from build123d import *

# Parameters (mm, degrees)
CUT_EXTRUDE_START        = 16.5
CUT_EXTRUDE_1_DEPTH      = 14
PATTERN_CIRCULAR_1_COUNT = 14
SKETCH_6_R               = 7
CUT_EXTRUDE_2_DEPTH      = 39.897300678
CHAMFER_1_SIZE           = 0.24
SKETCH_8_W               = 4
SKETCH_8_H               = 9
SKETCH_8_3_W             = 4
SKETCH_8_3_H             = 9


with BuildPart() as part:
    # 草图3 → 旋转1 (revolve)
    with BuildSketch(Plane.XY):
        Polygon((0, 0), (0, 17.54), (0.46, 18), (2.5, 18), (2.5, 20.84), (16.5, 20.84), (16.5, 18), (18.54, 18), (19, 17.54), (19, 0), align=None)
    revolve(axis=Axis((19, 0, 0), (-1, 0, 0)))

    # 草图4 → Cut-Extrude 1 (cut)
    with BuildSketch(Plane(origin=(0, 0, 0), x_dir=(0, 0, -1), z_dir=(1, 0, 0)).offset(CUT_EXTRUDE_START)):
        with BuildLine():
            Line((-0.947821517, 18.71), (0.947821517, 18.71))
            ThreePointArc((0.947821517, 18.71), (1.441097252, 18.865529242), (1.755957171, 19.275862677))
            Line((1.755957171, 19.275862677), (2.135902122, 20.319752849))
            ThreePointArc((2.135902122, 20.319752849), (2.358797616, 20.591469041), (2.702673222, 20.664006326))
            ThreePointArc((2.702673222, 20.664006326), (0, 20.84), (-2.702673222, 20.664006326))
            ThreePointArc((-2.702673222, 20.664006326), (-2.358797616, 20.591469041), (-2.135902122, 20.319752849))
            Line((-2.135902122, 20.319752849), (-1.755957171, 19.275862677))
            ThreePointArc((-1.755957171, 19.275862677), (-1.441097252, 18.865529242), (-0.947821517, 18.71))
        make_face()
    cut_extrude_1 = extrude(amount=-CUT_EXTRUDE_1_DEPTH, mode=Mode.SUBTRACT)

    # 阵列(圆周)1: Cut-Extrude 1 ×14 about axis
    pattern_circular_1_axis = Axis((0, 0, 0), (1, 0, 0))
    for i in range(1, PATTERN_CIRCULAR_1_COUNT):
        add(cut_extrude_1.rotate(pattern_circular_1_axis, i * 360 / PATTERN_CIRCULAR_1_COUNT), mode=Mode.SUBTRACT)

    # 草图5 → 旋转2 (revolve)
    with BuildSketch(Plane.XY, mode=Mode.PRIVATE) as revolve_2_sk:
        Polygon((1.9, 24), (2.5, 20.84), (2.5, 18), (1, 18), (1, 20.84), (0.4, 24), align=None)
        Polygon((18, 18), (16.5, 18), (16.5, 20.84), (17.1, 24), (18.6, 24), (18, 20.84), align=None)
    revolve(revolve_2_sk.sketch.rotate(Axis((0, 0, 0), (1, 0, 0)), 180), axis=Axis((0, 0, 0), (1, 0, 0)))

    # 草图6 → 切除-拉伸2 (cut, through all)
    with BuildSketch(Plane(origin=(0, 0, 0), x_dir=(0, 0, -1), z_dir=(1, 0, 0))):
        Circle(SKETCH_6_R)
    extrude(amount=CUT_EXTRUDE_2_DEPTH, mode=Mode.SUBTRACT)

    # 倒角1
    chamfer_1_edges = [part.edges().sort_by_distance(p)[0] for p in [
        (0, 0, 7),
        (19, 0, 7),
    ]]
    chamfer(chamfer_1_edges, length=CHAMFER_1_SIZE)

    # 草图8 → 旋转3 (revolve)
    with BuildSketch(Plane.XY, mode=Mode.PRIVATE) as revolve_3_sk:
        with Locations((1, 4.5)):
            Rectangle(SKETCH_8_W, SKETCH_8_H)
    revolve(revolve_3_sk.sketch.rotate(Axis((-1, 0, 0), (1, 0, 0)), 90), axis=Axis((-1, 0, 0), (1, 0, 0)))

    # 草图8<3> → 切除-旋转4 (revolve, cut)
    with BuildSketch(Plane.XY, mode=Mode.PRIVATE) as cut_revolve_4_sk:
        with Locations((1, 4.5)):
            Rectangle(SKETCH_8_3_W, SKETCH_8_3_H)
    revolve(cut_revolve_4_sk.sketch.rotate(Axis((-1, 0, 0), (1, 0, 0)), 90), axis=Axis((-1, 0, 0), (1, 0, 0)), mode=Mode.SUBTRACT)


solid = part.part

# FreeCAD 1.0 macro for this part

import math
import FreeCAD as App
import Part
import Sketcher
Q = App.Units.Quantity


def edges_at(feature, points):
    """Names of the edges that pass closest to the given points."""
    edges = feature.Shape.Edges
    near = lambda p: min(range(len(edges)), key=lambda i: edges[i].distToShape(Part.Vertex(*p))[0])
    return sorted({f"Edge{near(p) + 1}" for p in points})


def add_polygon(sketch, points):
    """Adds a closed chain of lines whose ends are joined by coincident constraints."""
    first, n = sketch.GeometryCount, len(points)
    for a, b in zip(points, points[1:] + points[:1]):
        sketch.addGeometry(Part.LineSegment(App.Vector(*a, 0), App.Vector(*b, 0)), False)
    for i in range(n):
        sketch.addConstraint(Sketcher.Constraint("Coincident", first + i, 2, first + (i + 1) % n, 1))

doc = App.newDocument("Part")
body = doc.addObject("PartDesign::Body", "Body")

sketch1 = body.newObject("Sketcher::SketchObject", "Sketch")
sketch1.AttachmentSupport = (doc.getObject("XY_Plane"), [""])
sketch1.MapMode = "FlatFace"
add_polygon(sketch1, [(0, 17.54), (0, 0), (19, 0), (19, 17.54), (18.54, 18), (16.5, 18), (16.5, 20.84), (2.5, 20.84), (2.5, 18), (0.46, 18)])
sketch1.addConstraint(Sketcher.Constraint("Vertical", 0))
sketch1.addConstraint(Sketcher.Constraint("Horizontal", 1))
sketch1.addConstraint(Sketcher.Constraint("Vertical", 2))
sketch1.addConstraint(Sketcher.Constraint("Horizontal", 4))
sketch1.addConstraint(Sketcher.Constraint("Vertical", 5))
sketch1.addConstraint(Sketcher.Constraint("Horizontal", 6))
sketch1.addConstraint(Sketcher.Constraint("Vertical", 7))
sketch1.addConstraint(Sketcher.Constraint("Horizontal", 8))
sketch1.addConstraint(Sketcher.Constraint("Coincident", 0, 2, -1, 1))
sketch1.addConstraint(Sketcher.Constraint("Perpendicular", 3, 9))
sketch1.addConstraint(Sketcher.Constraint("Horizontal", 4, 2, 7, 2))
sketch1.addConstraint(Sketcher.Constraint("Horizontal", 2, 2, 9, 2))
sketch1.addConstraint(Sketcher.Constraint("Equal", 4, 8))
sketch1.addConstraint(Sketcher.Constraint("Equal", 3, 9))
sketch1.addConstraint(Sketcher.Constraint("DistanceX", 1, 1, 1, 2, Q("19 mm")))
sketch1.addConstraint(Sketcher.Constraint("DistanceX", 6, 2, 6, 1, Q("14 mm")))
sketch1.addConstraint(Sketcher.Constraint("DistanceY", -1, 1, 3, 2, Q("18 mm")))
sketch1.addConstraint(Sketcher.Constraint("DistanceX", 4, 2, 4, 1, Q("2.04 mm")))
sketch1.addConstraint(Sketcher.Constraint("DistanceY", 5, 1, 5, 2, Q("2.84 mm")))
revolution = body.newObject("PartDesign::Revolution", "Revolution")
revolution.Profile = sketch1
revolution.ReferenceAxis = (sketch1, ["H_Axis"])
revolution.Angle = 360

sketch2 = body.newObject("Sketcher::SketchObject", "Sketch001")
sketch2.AttachmentSupport = (doc.getObject("YZ_Plane"), [""])
sketch2.MapMode = "FlatFace"
sketch2.AttachmentOffset = App.Placement(App.Vector(0, 0, 16.5), App.Rotation())
sketch2.addGeometry(Part.LineSegment(App.Vector(18.71, 0.947822, 0), App.Vector(18.71, -0.947822, 0)), False)
sketch2.addGeometry(Part.ArcOfCircle(Part.Circle(App.Vector(19.57, -0.947822, 0), App.Vector(0, 0, 1), 0.86), math.radians(-180), math.radians(-110)), False)
sketch2.addGeometry(Part.LineSegment(App.Vector(19.275863, -1.755957, 0), App.Vector(20.319753, -2.135902, 0)), False)
sketch2.addGeometry(Part.ArcOfCircle(Part.Circle(App.Vector(20.138482, -2.633939, 0), App.Vector(0, 0, 1), 0.53), math.radians(-7.451495), math.radians(70)), False)
sketch2.addGeometry(Part.ArcOfCircle(Part.Circle(App.Vector(0, 0, 0), App.Vector(0, 0, 1), 20.84), math.radians(-7.451495), math.radians(7.451495)), False)
sketch2.addGeometry(Part.ArcOfCircle(Part.Circle(App.Vector(20.138482, 2.633939, 0), App.Vector(0, 0, 1), 0.53), math.radians(-70), math.radians(7.451495)), False)
sketch2.addGeometry(Part.LineSegment(App.Vector(20.319753, 2.135902, 0), App.Vector(19.275863, 1.755957, 0)), False)
sketch2.addGeometry(Part.ArcOfCircle(Part.Circle(App.Vector(19.57, 0.947822, 0), App.Vector(0, 0, 1), 0.86), math.radians(110), math.radians(180)), False)
sketch2.addConstraint(Sketcher.Constraint("Tangent", 0, 2, 1, 1))
sketch2.addConstraint(Sketcher.Constraint("Tangent", 1, 2, 2, 1))
sketch2.addConstraint(Sketcher.Constraint("Tangent", 2, 2, 3, 2))
sketch2.addConstraint(Sketcher.Constraint("Tangent", 3, 1, 4, 1))
sketch2.addConstraint(Sketcher.Constraint("Tangent", 4, 2, 5, 2))
sketch2.addConstraint(Sketcher.Constraint("Tangent", 5, 1, 6, 1))
sketch2.addConstraint(Sketcher.Constraint("Tangent", 6, 2, 7, 1))
sketch2.addConstraint(Sketcher.Constraint("Tangent", 7, 2, 0, 1))
sketch2.addConstraint(Sketcher.Constraint("Vertical", 0))
sketch2.addConstraint(Sketcher.Constraint("Coincident", 4, 3, -1, 1))
sketch2.addConstraint(Sketcher.Constraint("Equal", 3, 5))
sketch2.addConstraint(Sketcher.Constraint("Equal", 1, 7))
sketch2.addConstraint(Sketcher.Constraint("Symmetric", 2, 2, 5, 1, -1))
sketch2.addConstraint(Sketcher.Constraint("Angle", 2, Q("-20 deg")))
sketch2.addConstraint(Sketcher.Constraint("Radius", 1, Q("0.86 mm")))
sketch2.addConstraint(Sketcher.Constraint("Radius", 3, Q("0.53 mm")))
sketch2.addConstraint(Sketcher.Constraint("Radius", 4, Q("20.84 mm")))
sketch2.addConstraint(Sketcher.Constraint("DistanceX", -1, 1, 1, 3, Q("19.57 mm")))
sketch2.addConstraint(Sketcher.Constraint("DistanceY", 0, 2, 0, 1, Q("1.895643 mm")))
pocket1 = body.newObject("PartDesign::Pocket", "Pocket")
pocket1.Profile = sketch2
pocket1.Length = 14
doc.recompute()

polarpattern = body.newObject("PartDesign::PolarPattern", "PolarPattern")
polarpattern.Originals = [pocket1]
polarpattern.Axis = (doc.getObject("X_Axis"), [""])
polarpattern.Angle = 360
polarpattern.Occurrences = 14
body.Tip = polarpattern

sketch3 = body.newObject("Sketcher::SketchObject", "Sketch002")
sketch3.AttachmentSupport = (doc.getObject("XY_Plane"), [""])
sketch3.MapMode = "FlatFace"
add_polygon(sketch3, [(2.5, 20.84), (1.9, 24), (0.4, 24), (1, 20.84), (1, 18), (2.5, 18)])
add_polygon(sketch3, [(16.5, 18), (18, 18), (18, 20.84), (18.6, 24), (17.1, 24), (16.5, 20.84)])
sketch3.addConstraint(Sketcher.Constraint("Horizontal", 1))
sketch3.addConstraint(Sketcher.Constraint("Vertical", 3))
sketch3.addConstraint(Sketcher.Constraint("Horizontal", 4))
sketch3.addConstraint(Sketcher.Constraint("Vertical", 5))
sketch3.addConstraint(Sketcher.Constraint("Horizontal", 6))
sketch3.addConstraint(Sketcher.Constraint("Vertical", 7))
sketch3.addConstraint(Sketcher.Constraint("Horizontal", 9))
sketch3.addConstraint(Sketcher.Constraint("Vertical", 11))
sketch3.addConstraint(Sketcher.Constraint("Parallel", 0, 2))
sketch3.addConstraint(Sketcher.Constraint("Parallel", 8, 10))
sketch3.addConstraint(Sketcher.Constraint("Horizontal", 2, 2, 5, 2))
sketch3.addConstraint(Sketcher.Constraint("Horizontal", 4, 2, 6, 2))
sketch3.addConstraint(Sketcher.Constraint("Horizontal", 5, 2, 7, 2))
sketch3.addConstraint(Sketcher.Constraint("Horizontal", 1, 2, 8, 2))
sketch3.addConstraint(Sketcher.Constraint("Horizontal", 7, 2, 10, 2))
sketch3.addConstraint(Sketcher.Constraint("Equal", 4, 6))
sketch3.addConstraint(Sketcher.Constraint("Equal", 2, 8))
sketch3.addConstraint(Sketcher.Constraint("DistanceX", 1, 2, 1, 1, Q("1.5 mm")))
sketch3.addConstraint(Sketcher.Constraint("DistanceY", -1, 1, 0, 2, Q("24 mm")))
sketch3.addConstraint(Sketcher.Constraint("DistanceX", -1, 1, 2, 2, Q("1 mm")))
sketch3.addConstraint(Sketcher.Constraint("DistanceY", -1, 1, 3, 2, Q("18 mm")))
sketch3.addConstraint(Sketcher.Constraint("DistanceX", -1, 1, 6, 2, Q("18 mm")))
sketch3.addConstraint(Sketcher.Constraint("DistanceY", 3, 2, 3, 1, Q("2.84 mm")))
sketch3.addConstraint(Sketcher.Constraint("DistanceX", -1, 1, 0, 2, Q("1.9 mm")))
revolution2 = body.newObject("PartDesign::Revolution", "Revolution001")
revolution2.Profile = sketch3
revolution2.ReferenceAxis = (sketch3, ["H_Axis"])
revolution2.Angle = 360

sketch4 = body.newObject("Sketcher::SketchObject", "Sketch003")
sketch4.AttachmentSupport = (doc.getObject("YZ_Plane"), [""])
sketch4.MapMode = "FlatFace"
sketch4.addGeometry(Part.Circle(App.Vector(0, 0, 0), App.Vector(0, 0, 1), 7), False)
sketch4.addConstraint(Sketcher.Constraint("Coincident", 0, 3, -1, 1))
sketch4.addConstraint(Sketcher.Constraint("Diameter", 0, Q("14 mm")))
pocket2 = body.newObject("PartDesign::Pocket", "Pocket001")
pocket2.Profile = sketch4
pocket2.Type = "ThroughAll"
pocket2.Reversed = True
doc.recompute()

chamfer = body.newObject("PartDesign::Chamfer", "Chamfer")
chamfer.Base = (pocket2, edges_at(pocket2, [(0, 0, 7), (19, 0, 7)]))
chamfer.Size = 0.24

sketch5 = body.newObject("Sketcher::SketchObject", "Sketch004")
sketch5.AttachmentSupport = (doc.getObject("XY_Plane"), [""])
sketch5.MapMode = "FlatFace"
add_polygon(sketch5, [(-1, 9), (-1, 0), (3, 0), (3, 9)])
sketch5.addConstraint(Sketcher.Constraint("Vertical", 0))
sketch5.addConstraint(Sketcher.Constraint("Horizontal", 1))
sketch5.addConstraint(Sketcher.Constraint("Vertical", 2))
sketch5.addConstraint(Sketcher.Constraint("Horizontal", 3))
sketch5.addConstraint(Sketcher.Constraint("PointOnObject", 0, 2, -1))
sketch5.addConstraint(Sketcher.Constraint("DistanceX", 1, 1, 1, 2, Q("4 mm")))
sketch5.addConstraint(Sketcher.Constraint("DistanceY", 0, 2, 0, 1, Q("9 mm")))
sketch5.addConstraint(Sketcher.Constraint("DistanceX", 0, 2, -1, 1, Q("1 mm")))
revolution3 = body.newObject("PartDesign::Revolution", "Revolution002")
revolution3.Profile = sketch5
revolution3.ReferenceAxis = (sketch5, ["H_Axis"])
revolution3.Angle = 360

sketch6 = body.newObject("Sketcher::SketchObject", "Sketch005")
sketch6.AttachmentSupport = (doc.getObject("XY_Plane"), [""])
sketch6.MapMode = "FlatFace"
add_polygon(sketch6, [(-1, 9), (-1, 0), (3, 0), (3, 9)])
sketch6.addConstraint(Sketcher.Constraint("Vertical", 0))
sketch6.addConstraint(Sketcher.Constraint("Horizontal", 1))
sketch6.addConstraint(Sketcher.Constraint("Vertical", 2))
sketch6.addConstraint(Sketcher.Constraint("Horizontal", 3))
sketch6.addConstraint(Sketcher.Constraint("PointOnObject", 0, 2, -1))
sketch6.addConstraint(Sketcher.Constraint("DistanceX", 1, 1, 1, 2, Q("4 mm")))
sketch6.addConstraint(Sketcher.Constraint("DistanceY", 0, 2, 0, 1, Q("9 mm")))
sketch6.addConstraint(Sketcher.Constraint("DistanceX", 0, 2, -1, 1, Q("1 mm")))
groove = body.newObject("PartDesign::Groove", "Groove")
groove.Profile = sketch6
groove.ReferenceAxis = (sketch6, ["H_Axis"])
groove.Angle = 360

doc.recompute()
